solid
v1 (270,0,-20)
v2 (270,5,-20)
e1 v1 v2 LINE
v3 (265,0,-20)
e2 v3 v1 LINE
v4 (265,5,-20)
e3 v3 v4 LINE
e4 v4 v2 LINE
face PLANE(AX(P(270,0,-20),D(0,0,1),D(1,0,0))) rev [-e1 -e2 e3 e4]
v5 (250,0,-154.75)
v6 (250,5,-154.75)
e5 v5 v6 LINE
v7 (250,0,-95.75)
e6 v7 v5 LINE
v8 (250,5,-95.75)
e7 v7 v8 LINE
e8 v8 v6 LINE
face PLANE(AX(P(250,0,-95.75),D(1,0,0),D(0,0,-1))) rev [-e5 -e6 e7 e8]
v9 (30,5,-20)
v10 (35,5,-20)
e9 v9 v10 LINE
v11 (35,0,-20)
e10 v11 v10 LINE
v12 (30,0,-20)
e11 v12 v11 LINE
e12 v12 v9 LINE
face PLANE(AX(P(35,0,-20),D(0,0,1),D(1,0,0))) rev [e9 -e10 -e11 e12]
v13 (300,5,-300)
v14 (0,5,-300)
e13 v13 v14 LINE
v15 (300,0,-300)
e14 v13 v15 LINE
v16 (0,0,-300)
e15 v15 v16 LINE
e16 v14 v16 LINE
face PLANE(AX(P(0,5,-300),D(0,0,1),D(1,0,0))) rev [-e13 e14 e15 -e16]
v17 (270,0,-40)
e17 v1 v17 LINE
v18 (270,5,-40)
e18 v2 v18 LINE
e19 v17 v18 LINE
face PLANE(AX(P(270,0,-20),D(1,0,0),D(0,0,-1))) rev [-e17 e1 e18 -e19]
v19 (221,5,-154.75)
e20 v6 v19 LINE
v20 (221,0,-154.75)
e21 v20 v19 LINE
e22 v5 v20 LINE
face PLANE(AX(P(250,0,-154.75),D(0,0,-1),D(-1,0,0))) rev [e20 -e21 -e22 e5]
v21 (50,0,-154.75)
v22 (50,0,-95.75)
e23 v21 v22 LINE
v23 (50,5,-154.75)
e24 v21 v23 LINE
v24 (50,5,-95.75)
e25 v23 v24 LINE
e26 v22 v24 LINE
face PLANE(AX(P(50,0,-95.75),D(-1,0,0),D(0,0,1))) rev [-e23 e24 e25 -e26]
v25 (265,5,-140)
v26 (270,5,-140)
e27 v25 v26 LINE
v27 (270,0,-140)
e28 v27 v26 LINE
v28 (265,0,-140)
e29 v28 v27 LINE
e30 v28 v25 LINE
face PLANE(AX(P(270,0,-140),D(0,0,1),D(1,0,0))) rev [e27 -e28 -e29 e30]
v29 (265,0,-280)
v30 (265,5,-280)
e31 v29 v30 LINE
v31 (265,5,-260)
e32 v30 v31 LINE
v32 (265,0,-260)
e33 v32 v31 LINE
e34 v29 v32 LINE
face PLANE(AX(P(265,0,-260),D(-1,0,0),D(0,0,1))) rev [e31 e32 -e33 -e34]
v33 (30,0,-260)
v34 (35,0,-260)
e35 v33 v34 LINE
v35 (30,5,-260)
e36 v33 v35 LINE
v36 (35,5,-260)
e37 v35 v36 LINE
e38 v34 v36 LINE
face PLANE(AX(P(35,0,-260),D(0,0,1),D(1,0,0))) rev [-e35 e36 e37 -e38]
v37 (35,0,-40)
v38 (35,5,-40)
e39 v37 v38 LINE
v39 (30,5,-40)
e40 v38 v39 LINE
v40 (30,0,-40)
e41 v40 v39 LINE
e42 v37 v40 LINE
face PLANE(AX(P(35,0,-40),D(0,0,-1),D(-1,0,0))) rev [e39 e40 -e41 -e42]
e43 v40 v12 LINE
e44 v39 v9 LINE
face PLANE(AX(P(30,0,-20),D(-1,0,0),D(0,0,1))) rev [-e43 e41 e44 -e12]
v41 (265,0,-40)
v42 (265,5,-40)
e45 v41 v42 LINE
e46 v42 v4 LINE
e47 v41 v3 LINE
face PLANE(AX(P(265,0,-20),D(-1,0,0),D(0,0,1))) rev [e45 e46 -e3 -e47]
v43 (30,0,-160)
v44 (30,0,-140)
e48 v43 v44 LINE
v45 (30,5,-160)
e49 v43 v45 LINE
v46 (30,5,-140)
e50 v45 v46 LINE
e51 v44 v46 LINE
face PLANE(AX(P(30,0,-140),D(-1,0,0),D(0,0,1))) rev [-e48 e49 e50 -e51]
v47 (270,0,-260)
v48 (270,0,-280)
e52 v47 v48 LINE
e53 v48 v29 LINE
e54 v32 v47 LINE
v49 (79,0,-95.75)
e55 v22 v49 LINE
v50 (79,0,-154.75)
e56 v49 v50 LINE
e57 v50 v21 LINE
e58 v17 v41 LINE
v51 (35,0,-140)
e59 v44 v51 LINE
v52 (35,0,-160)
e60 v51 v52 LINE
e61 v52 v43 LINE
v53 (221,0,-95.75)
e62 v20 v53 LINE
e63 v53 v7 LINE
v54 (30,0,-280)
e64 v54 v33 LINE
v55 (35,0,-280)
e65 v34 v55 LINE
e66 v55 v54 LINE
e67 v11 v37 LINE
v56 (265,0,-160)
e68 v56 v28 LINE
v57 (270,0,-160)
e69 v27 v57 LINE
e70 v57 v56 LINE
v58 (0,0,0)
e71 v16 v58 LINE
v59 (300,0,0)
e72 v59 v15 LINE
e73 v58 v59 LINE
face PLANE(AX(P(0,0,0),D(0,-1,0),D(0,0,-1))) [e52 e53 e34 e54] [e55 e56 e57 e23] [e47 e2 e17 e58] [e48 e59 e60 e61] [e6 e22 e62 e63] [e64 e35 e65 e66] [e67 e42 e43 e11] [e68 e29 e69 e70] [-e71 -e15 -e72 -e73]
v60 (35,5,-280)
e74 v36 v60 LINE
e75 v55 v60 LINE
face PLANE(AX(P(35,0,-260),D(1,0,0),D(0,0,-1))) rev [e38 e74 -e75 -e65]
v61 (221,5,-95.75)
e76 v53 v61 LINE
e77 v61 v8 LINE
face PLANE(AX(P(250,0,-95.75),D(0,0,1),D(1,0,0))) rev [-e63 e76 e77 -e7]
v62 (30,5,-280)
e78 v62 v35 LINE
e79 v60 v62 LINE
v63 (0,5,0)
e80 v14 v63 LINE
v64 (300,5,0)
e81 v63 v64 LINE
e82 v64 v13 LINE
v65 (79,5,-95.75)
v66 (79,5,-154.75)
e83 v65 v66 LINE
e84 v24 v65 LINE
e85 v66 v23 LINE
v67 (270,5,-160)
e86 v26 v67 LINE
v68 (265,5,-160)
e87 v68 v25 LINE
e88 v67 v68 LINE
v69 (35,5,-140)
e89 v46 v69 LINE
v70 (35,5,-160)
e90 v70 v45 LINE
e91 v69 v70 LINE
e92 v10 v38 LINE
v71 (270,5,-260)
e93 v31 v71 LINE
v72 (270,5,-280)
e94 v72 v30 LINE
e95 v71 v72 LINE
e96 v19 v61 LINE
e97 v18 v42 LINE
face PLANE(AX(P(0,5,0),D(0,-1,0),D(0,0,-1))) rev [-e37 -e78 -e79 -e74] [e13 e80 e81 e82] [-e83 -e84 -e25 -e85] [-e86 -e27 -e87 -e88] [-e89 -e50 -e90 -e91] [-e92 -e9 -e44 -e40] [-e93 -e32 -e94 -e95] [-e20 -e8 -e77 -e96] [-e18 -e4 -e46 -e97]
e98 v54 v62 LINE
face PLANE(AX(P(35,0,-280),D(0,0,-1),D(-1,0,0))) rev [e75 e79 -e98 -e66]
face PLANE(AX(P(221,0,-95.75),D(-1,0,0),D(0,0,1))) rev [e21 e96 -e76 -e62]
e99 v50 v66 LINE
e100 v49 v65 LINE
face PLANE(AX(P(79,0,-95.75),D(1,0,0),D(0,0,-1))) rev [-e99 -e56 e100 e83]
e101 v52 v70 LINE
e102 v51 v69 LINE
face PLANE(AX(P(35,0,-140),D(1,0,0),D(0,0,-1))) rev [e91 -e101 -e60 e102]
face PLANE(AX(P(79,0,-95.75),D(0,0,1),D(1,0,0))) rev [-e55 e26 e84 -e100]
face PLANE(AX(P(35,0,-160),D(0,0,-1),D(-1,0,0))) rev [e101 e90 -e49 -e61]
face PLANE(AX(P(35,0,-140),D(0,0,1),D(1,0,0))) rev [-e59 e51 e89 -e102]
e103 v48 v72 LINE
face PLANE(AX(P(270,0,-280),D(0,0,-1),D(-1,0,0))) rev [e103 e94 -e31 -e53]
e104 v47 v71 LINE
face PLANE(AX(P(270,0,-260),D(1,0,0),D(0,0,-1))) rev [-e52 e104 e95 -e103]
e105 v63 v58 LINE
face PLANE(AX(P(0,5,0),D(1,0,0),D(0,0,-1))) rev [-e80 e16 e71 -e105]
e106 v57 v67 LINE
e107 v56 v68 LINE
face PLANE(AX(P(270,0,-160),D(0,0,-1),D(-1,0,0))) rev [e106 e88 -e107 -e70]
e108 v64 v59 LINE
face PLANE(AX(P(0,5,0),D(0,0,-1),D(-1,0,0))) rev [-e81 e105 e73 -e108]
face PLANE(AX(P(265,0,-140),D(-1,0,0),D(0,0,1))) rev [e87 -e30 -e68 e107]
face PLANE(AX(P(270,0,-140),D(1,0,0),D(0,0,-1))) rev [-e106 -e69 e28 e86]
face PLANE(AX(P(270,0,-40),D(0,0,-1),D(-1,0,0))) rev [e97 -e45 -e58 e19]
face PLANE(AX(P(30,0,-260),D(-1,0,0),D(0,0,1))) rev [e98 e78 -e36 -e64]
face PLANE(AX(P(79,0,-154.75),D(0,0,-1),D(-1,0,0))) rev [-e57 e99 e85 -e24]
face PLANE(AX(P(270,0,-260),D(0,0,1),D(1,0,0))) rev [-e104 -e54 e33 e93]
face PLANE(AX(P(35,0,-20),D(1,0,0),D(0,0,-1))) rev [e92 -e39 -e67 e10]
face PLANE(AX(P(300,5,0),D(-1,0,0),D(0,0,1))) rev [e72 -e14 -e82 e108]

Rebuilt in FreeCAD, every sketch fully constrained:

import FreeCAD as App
import Part
import Sketcher
from FreeCAD import Vector

doc = App.newDocument("Part")
body = doc.addObject("PartDesign::Body", "Body")

# Sketch on XZ plane
sketch1 = body.newObject("Sketcher::SketchObject", "Sketch")
sketch1.AttachmentSupport = (doc.getObject("XZ_Plane"), [""])
sketch1.MapMode = "FlatFace"
sketch1.addGeometry(Part.LineSegment(Vector(0, -300, 0), Vector(0, 0, 0)), False)
sketch1.addGeometry(Part.LineSegment(Vector(0, 0, 0), Vector(300, 0, 0)), False)
sketch1.addGeometry(Part.LineSegment(Vector(300, 0, 0), Vector(300, -300, 0)), False)
sketch1.addGeometry(Part.LineSegment(Vector(300, -300, 0), Vector(0, -300, 0)), False)
sketch1.addConstraint(Sketcher.Constraint("Coincident", 0, 2, 1, 1))
sketch1.addConstraint(Sketcher.Constraint("Coincident", 1, 2, 2, 1))
sketch1.addConstraint(Sketcher.Constraint("Coincident", 2, 2, 3, 1))
sketch1.addConstraint(Sketcher.Constraint("Coincident", 3, 2, 0, 1))
sketch1.addConstraint(Sketcher.Constraint("Vertical", 0))
sketch1.addConstraint(Sketcher.Constraint("Horizontal", 1))
sketch1.addConstraint(Sketcher.Constraint("Vertical", 2))
sketch1.addConstraint(Sketcher.Constraint("Horizontal", 3))
sketch1.addConstraint(Sketcher.Constraint("Coincident", 0, 2, -1, 1))
sketch1.addConstraint(Sketcher.Constraint("Equal", 3, 0))
sketch1.addConstraint(Sketcher.Constraint("DistanceX", 1, 1, 1, 2, 300.0))
pad1 = body.newObject("PartDesign::Pad", "Pad")
pad1.Profile = sketch1
pad1.Length = 5
pad1.Reversed = True

# Sketch on XZ plane
sketch2 = body.newObject("Sketcher::SketchObject", "Sketch001")
sketch2.AttachmentSupport = (doc.getObject("XZ_Plane"), [""])
sketch2.MapMode = "FlatFace"
sketch2.AttachmentOffset = App.Placement(Vector(0, 0, -5), App.Rotation())
sketch2.addGeometry(Part.LineSegment(Vector(221, -155, 0), Vector(221, -96, 0)), False)
sketch2.addGeometry(Part.LineSegment(Vector(221, -96, 0), Vector(250, -96, 0)), False)
sketch2.addGeometry(Part.LineSegment(Vector(250, -96, 0), Vector(250, -155, 0)), False)
sketch2.addGeometry(Part.LineSegment(Vector(250, -155, 0), Vector(221, -155, 0)), False)
sketch2.addGeometry(Part.LineSegment(Vector(50, -155, 0), Vector(50, -96, 0)), False)
sketch2.addGeometry(Part.LineSegment(Vector(50, -96, 0), Vector(79, -96, 0)), False)
sketch2.addGeometry(Part.LineSegment(Vector(79, -96, 0), Vector(79, -155, 0)), False)
sketch2.addGeometry(Part.LineSegment(Vector(79, -155, 0), Vector(50, -155, 0)), False)
sketch2.addConstraint(Sketcher.Constraint("Coincident", 0, 2, 1, 1))
sketch2.addConstraint(Sketcher.Constraint("Coincident", 1, 2, 2, 1))
sketch2.addConstraint(Sketcher.Constraint("Coincident", 2, 2, 3, 1))
sketch2.addConstraint(Sketcher.Constraint("Coincident", 3, 2, 0, 1))
sketch2.addConstraint(Sketcher.Constraint("Coincident", 4, 2, 5, 1))
sketch2.addConstraint(Sketcher.Constraint("Coincident", 5, 2, 6, 1))
sketch2.addConstraint(Sketcher.Constraint("Coincident", 6, 2, 7, 1))
sketch2.addConstraint(Sketcher.Constraint("Coincident", 7, 2, 4, 1))
sketch2.addConstraint(Sketcher.Constraint("Vertical", 0))
sketch2.addConstraint(Sketcher.Constraint("Horizontal", 1))
sketch2.addConstraint(Sketcher.Constraint("Vertical", 2))
sketch2.addConstraint(Sketcher.Constraint("Horizontal", 3))
sketch2.addConstraint(Sketcher.Constraint("Vertical", 4))
sketch2.addConstraint(Sketcher.Constraint("Horizontal", 5))
sketch2.addConstraint(Sketcher.Constraint("Vertical", 6))
sketch2.addConstraint(Sketcher.Constraint("Horizontal", 7))
sketch2.addConstraint(Sketcher.Constraint("Horizontal", 1, 2, 4, 2))
sketch2.addConstraint(Sketcher.Constraint("Horizontal", 3, 2, 6, 2))
sketch2.addConstraint(Sketcher.Constraint("Equal", 3, 5))
sketch2.addConstraint(Sketcher.Constraint("DistanceX", 1, 1, 1, 2, 29.0))
sketch2.addConstraint(Sketcher.Constraint("DistanceY", 0, 1, 0, 2, 59.0))
sketch2.addConstraint(Sketcher.Constraint("DistanceX", -1, 1, 0, 2, 221.0))
sketch2.addConstraint(Sketcher.Constraint("DistanceX", -1, 1, 4, 2, 50.0))
sketch2.addConstraint(Sketcher.Constraint("DistanceY", 0, 2, -1, 1, 95.75))
pocket1 = body.newObject("PartDesign::Pocket", "Pocket")
pocket1.Profile = sketch2
pocket1.Length = 5
pocket1.Reversed = True

# Sketch on XZ plane
sketch3 = body.newObject("Sketcher::SketchObject", "Sketch002")
sketch3.AttachmentSupport = (doc.getObject("XZ_Plane"), [""])
sketch3.MapMode = "FlatFace"
sketch3.AttachmentOffset = App.Placement(Vector(0, 0, -5), App.Rotation())
sketch3.addGeometry(Part.LineSegment(Vector(265, -40, 0), Vector(265, -20, 0)), False)
sketch3.addGeometry(Part.LineSegment(Vector(265, -20, 0), Vector(270, -20, 0)), False)
sketch3.addGeometry(Part.LineSegment(Vector(270, -20, 0), Vector(270, -40, 0)), False)
sketch3.addGeometry(Part.LineSegment(Vector(270, -40, 0), Vector(265, -40, 0)), False)
sketch3.addGeometry(Part.LineSegment(Vector(265, -160, 0), Vector(265, -140, 0)), False)
sketch3.addGeometry(Part.LineSegment(Vector(265, -140, 0), Vector(270, -140, 0)), False)
sketch3.addGeometry(Part.LineSegment(Vector(270, -140, 0), Vector(270, -160, 0)), False)
sketch3.addGeometry(Part.LineSegment(Vector(270, -160, 0), Vector(265, -160, 0)), False)
sketch3.addGeometry(Part.LineSegment(Vector(265, -280, 0), Vector(265, -260, 0)), False)
sketch3.addGeometry(Part.LineSegment(Vector(265, -260, 0), Vector(270, -260, 0)), False)
sketch3.addGeometry(Part.LineSegment(Vector(270, -260, 0), Vector(270, -280, 0)), False)
sketch3.addGeometry(Part.LineSegment(Vector(270, -280, 0), Vector(265, -280, 0)), False)
sketch3.addGeometry(Part.LineSegment(Vector(30, -40, 0), Vector(30, -20, 0)), False)
sketch3.addGeometry(Part.LineSegment(Vector(30, -20, 0), Vector(35, -20, 0)), False)
sketch3.addGeometry(Part.LineSegment(Vector(35, -20, 0), Vector(35, -40, 0)), False)
sketch3.addGeometry(Part.LineSegment(Vector(35, -40, 0), Vector(30, -40, 0)), False)
sketch3.addGeometry(Part.LineSegment(Vector(30, -160, 0), Vector(30, -140, 0)), False)
sketch3.addGeometry(Part.LineSegment(Vector(30, -140, 0), Vector(35, -140, 0)), False)
sketch3.addGeometry(Part.LineSegment(Vector(35, -140, 0), Vector(35, -160, 0)), False)
sketch3.addGeometry(Part.LineSegment(Vector(35, -160, 0), Vector(30, -160, 0)), False)
sketch3.addGeometry(Part.LineSegment(Vector(30, -280, 0), Vector(30, -260, 0)), False)
sketch3.addGeometry(Part.LineSegment(Vector(30, -260, 0), Vector(35, -260, 0)), False)
sketch3.addGeometry(Part.LineSegment(Vector(35, -260, 0), Vector(35, -280, 0)), False)
sketch3.addGeometry(Part.LineSegment(Vector(35, -280, 0), Vector(30, -280, 0)), False)
sketch3.addConstraint(Sketcher.Constraint("Coincident", 0, 2, 1, 1))
sketch3.addConstraint(Sketcher.Constraint("Coincident", 1, 2, 2, 1))
sketch3.addConstraint(Sketcher.Constraint("Coincident", 2, 2, 3, 1))
sketch3.addConstraint(Sketcher.Constraint("Coincident", 3, 2, 0, 1))
sketch3.addConstraint(Sketcher.Constraint("Coincident", 4, 2, 5, 1))
sketch3.addConstraint(Sketcher.Constraint("Coincident", 5, 2, 6, 1))
sketch3.addConstraint(Sketcher.Constraint("Coincident", 6, 2, 7, 1))
sketch3.addConstraint(Sketcher.Constraint("Coincident", 7, 2, 4, 1))
sketch3.addConstraint(Sketcher.Constraint("Coincident", 8, 2, 9, 1))
sketch3.addConstraint(Sketcher.Constraint("Coincident", 9, 2, 10, 1))
sketch3.addConstraint(Sketcher.Constraint("Coincident", 10, 2, 11, 1))
sketch3.addConstraint(Sketcher.Constraint("Coincident", 11, 2, 8, 1))
sketch3.addConstraint(Sketcher.Constraint("Coincident", 12, 2, 13, 1))
sketch3.addConstraint(Sketcher.Constraint("Coincident", 13, 2, 14, 1))
sketch3.addConstraint(Sketcher.Constraint("Coincident", 14, 2, 15, 1))
sketch3.addConstraint(Sketcher.Constraint("Coincident", 15, 2, 12, 1))
sketch3.addConstraint(Sketcher.Constraint("Coincident", 16, 2, 17, 1))
sketch3.addConstraint(Sketcher.Constraint("Coincident", 17, 2, 18, 1))
sketch3.addConstraint(Sketcher.Constraint("Coincident", 18, 2, 19, 1))
sketch3.addConstraint(Sketcher.Constraint("Coincident", 19, 2, 16, 1))
sketch3.addConstraint(Sketcher.Constraint("Coincident", 20, 2, 21, 1))
sketch3.addConstraint(Sketcher.Constraint("Coincident", 21, 2, 22, 1))
sketch3.addConstraint(Sketcher.Constraint("Coincident", 22, 2, 23, 1))
sketch3.addConstraint(Sketcher.Constraint("Coincident", 23, 2, 20, 1))
sketch3.addConstraint(Sketcher.Constraint("Vertical", 0))
sketch3.addConstraint(Sketcher.Constraint("Horizontal", 1))
sketch3.addConstraint(Sketcher.Constraint("Vertical", 2))
sketch3.addConstraint(Sketcher.Constraint("Horizontal", 3))
sketch3.addConstraint(Sketcher.Constraint("Vertical", 4))
sketch3.addConstraint(Sketcher.Constraint("Horizontal", 5))
sketch3.addConstraint(Sketcher.Constraint("Vertical", 6))
sketch3.addConstraint(Sketcher.Constraint("Horizontal", 7))
sketch3.addConstraint(Sketcher.Constraint("Vertical", 8))
sketch3.addConstraint(Sketcher.Constraint("Horizontal", 9))
sketch3.addConstraint(Sketcher.Constraint("Vertical", 10))
sketch3.addConstraint(Sketcher.Constraint("Horizontal", 11))
sketch3.addConstraint(Sketcher.Constraint("Vertical", 12))
sketch3.addConstraint(Sketcher.Constraint("Horizontal", 13))
sketch3.addConstraint(Sketcher.Constraint("Vertical", 14))
sketch3.addConstraint(Sketcher.Constraint("Horizontal", 15))
sketch3.addConstraint(Sketcher.Constraint("Vertical", 16))
sketch3.addConstraint(Sketcher.Constraint("Horizontal", 17))
sketch3.addConstraint(Sketcher.Constraint("Vertical", 18))
sketch3.addConstraint(Sketcher.Constraint("Horizontal", 19))
sketch3.addConstraint(Sketcher.Constraint("Vertical", 20))
sketch3.addConstraint(Sketcher.Constraint("Horizontal", 21))
sketch3.addConstraint(Sketcher.Constraint("Vertical", 22))
sketch3.addConstraint(Sketcher.Constraint("Horizontal", 23))
sketch3.addConstraint(Sketcher.Constraint("Horizontal", 1, 2, 12, 2))
sketch3.addConstraint(Sketcher.Constraint("Horizontal", 3, 2, 14, 2))
sketch3.addConstraint(Sketcher.Constraint("Horizontal", 5, 2, 16, 2))
sketch3.addConstraint(Sketcher.Constraint("Horizontal", 7, 2, 18, 2))
sketch3.addConstraint(Sketcher.Constraint("Horizontal", 9, 2, 20, 2))
sketch3.addConstraint(Sketcher.Constraint("Horizontal", 11, 2, 22, 2))
sketch3.addConstraint(Sketcher.Constraint("Vertical", 3, 2, 4, 2))
sketch3.addConstraint(Sketcher.Constraint("Vertical", 2, 2, 5, 2))
sketch3.addConstraint(Sketcher.Constraint("Vertical", 7, 2, 8, 2))
sketch3.addConstraint(Sketcher.Constraint("Vertical", 6, 2, 9, 2))
sketch3.addConstraint(Sketcher.Constraint("Vertical", 15, 2, 16, 2))
sketch3.addConstraint(Sketcher.Constraint("Vertical", 14, 2, 17, 2))
sketch3.addConstraint(Sketcher.Constraint("Vertical", 19, 2, 20, 2))
sketch3.addConstraint(Sketcher.Constraint("Vertical", 18, 2, 21, 2))
sketch3.addConstraint(Sketcher.Constraint("Equal", 11, 13))
sketch3.addConstraint(Sketcher.Constraint("Equal", 2, 4))
sketch3.addConstraint(Sketcher.Constraint("Equal", 6, 8))
sketch3.addConstraint(Sketcher.Constraint("DistanceX", 1, 1, 1, 2, 5.0))
sketch3.addConstraint(Sketcher.Constraint("DistanceY", 0, 1, 0, 2, 20.0))
sketch3.addConstraint(Sketcher.Constraint("DistanceX", -1, 1, 0, 2, 265.0))
sketch3.addConstraint(Sketcher.Constraint("DistanceY", 0, 2, -1, 1, 20.0))
sketch3.addConstraint(Sketcher.Constraint("DistanceY", 4, 2, -1, 1, 140.0))
sketch3.addConstraint(Sketcher.Constraint("DistanceY", 8, 2, -1, 1, 260.0))
sketch3.addConstraint(Sketcher.Constraint("DistanceX", -1, 1, 12, 2, 30.0))
pocket2 = body.newObject("PartDesign::Pocket", "Pocket001")
pocket2.Profile = sketch3
pocket2.Length = 5
pocket2.Reversed = True

doc.recompute()
